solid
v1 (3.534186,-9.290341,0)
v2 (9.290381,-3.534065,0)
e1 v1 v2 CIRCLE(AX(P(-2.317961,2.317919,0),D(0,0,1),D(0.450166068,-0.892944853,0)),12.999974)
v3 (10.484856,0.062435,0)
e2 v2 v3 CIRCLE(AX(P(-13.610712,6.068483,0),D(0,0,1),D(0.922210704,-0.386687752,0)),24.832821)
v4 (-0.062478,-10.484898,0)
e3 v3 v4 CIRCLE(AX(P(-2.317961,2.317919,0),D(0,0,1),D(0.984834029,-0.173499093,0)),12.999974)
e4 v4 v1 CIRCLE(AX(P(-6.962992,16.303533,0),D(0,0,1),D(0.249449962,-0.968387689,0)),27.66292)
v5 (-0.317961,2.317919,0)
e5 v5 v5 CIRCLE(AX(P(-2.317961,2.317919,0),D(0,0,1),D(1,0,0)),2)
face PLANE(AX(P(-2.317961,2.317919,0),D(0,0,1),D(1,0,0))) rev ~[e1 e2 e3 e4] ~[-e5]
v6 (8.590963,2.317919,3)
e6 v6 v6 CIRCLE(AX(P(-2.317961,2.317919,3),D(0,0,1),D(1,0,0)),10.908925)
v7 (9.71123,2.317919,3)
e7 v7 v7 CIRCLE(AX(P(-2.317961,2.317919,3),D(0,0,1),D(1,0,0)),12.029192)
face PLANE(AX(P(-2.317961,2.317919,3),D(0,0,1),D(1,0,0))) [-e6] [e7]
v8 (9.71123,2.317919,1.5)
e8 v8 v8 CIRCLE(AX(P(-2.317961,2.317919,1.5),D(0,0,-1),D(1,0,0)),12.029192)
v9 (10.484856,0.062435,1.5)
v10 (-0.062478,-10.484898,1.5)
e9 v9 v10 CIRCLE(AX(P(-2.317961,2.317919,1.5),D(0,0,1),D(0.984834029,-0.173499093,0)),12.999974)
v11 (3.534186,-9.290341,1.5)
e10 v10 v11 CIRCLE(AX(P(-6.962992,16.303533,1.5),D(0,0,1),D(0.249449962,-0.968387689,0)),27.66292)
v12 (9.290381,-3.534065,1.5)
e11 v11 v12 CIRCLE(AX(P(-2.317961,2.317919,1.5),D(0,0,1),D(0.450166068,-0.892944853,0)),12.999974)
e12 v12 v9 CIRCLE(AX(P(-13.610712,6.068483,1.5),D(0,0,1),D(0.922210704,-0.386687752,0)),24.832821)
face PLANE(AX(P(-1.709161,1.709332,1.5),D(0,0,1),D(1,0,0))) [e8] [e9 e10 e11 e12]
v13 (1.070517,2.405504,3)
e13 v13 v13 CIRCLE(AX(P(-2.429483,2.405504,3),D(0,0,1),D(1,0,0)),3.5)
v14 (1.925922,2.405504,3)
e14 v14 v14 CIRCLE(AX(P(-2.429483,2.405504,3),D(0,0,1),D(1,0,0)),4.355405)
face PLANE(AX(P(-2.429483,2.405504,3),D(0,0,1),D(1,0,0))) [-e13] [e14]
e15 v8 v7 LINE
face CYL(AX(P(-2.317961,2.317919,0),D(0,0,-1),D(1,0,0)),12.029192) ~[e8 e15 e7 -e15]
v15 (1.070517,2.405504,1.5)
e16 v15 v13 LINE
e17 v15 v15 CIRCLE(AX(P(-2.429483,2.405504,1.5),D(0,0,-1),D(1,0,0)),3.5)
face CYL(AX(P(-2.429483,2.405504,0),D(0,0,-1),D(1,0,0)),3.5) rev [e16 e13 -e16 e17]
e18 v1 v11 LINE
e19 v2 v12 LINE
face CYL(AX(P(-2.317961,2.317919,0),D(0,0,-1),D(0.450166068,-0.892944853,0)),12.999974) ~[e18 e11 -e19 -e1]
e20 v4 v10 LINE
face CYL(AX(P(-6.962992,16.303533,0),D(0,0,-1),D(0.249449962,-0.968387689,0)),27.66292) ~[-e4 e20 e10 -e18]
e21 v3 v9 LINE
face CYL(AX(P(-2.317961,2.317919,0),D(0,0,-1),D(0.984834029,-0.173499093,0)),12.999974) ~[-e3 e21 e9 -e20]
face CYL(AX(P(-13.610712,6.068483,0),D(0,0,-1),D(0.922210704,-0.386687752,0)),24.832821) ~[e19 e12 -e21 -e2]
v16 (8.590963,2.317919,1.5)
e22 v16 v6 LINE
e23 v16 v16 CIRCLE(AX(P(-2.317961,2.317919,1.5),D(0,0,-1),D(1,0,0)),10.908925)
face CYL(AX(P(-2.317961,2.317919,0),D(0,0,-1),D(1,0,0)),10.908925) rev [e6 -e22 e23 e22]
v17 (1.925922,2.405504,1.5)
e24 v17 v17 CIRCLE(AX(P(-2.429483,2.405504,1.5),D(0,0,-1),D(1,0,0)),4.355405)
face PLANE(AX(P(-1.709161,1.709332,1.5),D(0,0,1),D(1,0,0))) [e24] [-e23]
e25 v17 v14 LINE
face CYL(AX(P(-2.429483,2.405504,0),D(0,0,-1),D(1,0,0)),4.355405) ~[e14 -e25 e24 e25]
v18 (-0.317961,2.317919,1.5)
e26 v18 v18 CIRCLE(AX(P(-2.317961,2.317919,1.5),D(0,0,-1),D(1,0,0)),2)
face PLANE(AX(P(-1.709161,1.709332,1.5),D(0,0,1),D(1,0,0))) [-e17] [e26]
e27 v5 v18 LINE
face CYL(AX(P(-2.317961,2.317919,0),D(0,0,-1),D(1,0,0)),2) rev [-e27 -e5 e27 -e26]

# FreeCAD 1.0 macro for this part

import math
import FreeCAD as App
import Part
import Sketcher
from FreeCAD import Vector
Q = App.Units.Quantity

doc = App.newDocument("Part")
body = doc.addObject("PartDesign::Body", "Body")

# Sketch on XY plane
sketch1 = doc.addObject("Sketcher::SketchObject", "Sketch")
body.addObject(sketch1)
sketch1.AttachmentSupport = (doc.XY_Plane, [""])
sketch1.MapMode = "FlatFace"
sketch1.addGeometry([
    Part.ArcOfCircle(Part.Circle(Vector(-13.6, 6.1, 0), Vector(0, 0, 1), 24.8), math.radians(-22.75), math.radians(-14)),
    Part.ArcOfCircle(Part.Circle(Vector(-2.3, 2.3, 0), Vector(0, 0, 1), 13), math.radians(-10), math.radians(280)),
    Part.ArcOfCircle(Part.Circle(Vector(-7, 16.3, 0), Vector(0, 0, 1), 27.7), math.radians(-75.56), math.radians(-67.7)),
    Part.ArcOfCircle(Part.Circle(Vector(-2.3, 2.3, 0), Vector(0, 0, 1), 13), math.radians(-63), math.radians(-27)),
], False)
sketch1.addConstraint([
    Sketcher.Constraint("Coincident", 0, 2, 1, 1),
    Sketcher.Constraint("Coincident", 1, 2, 2, 1),
    Sketcher.Constraint("Coincident", 2, 2, 3, 1),
    Sketcher.Constraint("Coincident", 3, 2, 0, 1),
    Sketcher.Constraint("Coincident", 3, 3, 1, 3),
    Sketcher.Constraint("Equal", 1, 3),
    Sketcher.Constraint("Radius", 0, Q("24.832821 mm")),
    Sketcher.Constraint("Radius", 2, Q("27.66292 mm")),
    Sketcher.Constraint("Radius", 1, Q("12.999974 mm")),
    Sketcher.Constraint("DistanceX", 0, 3, 2, 2, Q("17.144898 mm")),
    Sketcher.Constraint("DistanceY", 3, 2, 0, 2, Q("3.5965 mm")),
    Sketcher.Constraint("DistanceX", 1, 3, -1, 1, Q("2.317961 mm")),
    Sketcher.Constraint("DistanceY", -1, 1, 1, 3, Q("2.317919 mm")),
    Sketcher.Constraint("DistanceX", 2, 3, -1, 1, Q("6.962992 mm")),
    Sketcher.Constraint("DistanceY", 2, 2, -1, 1, Q("9.290341 mm")),
])
pad1 = doc.addObject("PartDesign::Pad", "Pad")
body.addObject(pad1)
pad1.Profile = sketch1
pad1.Length = 1.5

# Sketch on XY plane
sketch2 = doc.addObject("Sketcher::SketchObject", "Sketch001")
body.addObject(sketch2)
sketch2.AttachmentSupport = (doc.XY_Plane, [""])
sketch2.MapMode = "FlatFace"
sketch2.addGeometry([
    Part.Circle(Vector(-2.3, 2.3, 0), Vector(0, 0, 1), 12),
    Part.Circle(Vector(-2.3, 2.3, 0), Vector(0, 0, 1), 10.9),
    Part.Circle(Vector(-2.4, 2.4, 0), Vector(0, 0, 1), 4.4),
    Part.Circle(Vector(-2.4, 2.4, 0), Vector(0, 0, 1), 3.5),
], False)
sketch2.addConstraint([
    Sketcher.Constraint("Coincident", 1, 3, 0, 3),
    Sketcher.Constraint("Coincident", 3, 3, 2, 3),
    Sketcher.Constraint("Diameter", 3, Q("7 mm")),
    Sketcher.Constraint("Diameter", 1, Q("21.817849 mm")),
    Sketcher.Constraint("Diameter", 2, Q("8.710811 mm")),
    Sketcher.Constraint("Diameter", 0, Q("24.058383 mm")),
    Sketcher.Constraint("DistanceX", 0, 3, -1, 1, Q("2.317961 mm")),
    Sketcher.Constraint("DistanceY", -1, 1, 0, 3, Q("2.317919 mm")),
    Sketcher.Constraint("DistanceX", 2, 3, -1, 1, Q("2.429483 mm")),
    Sketcher.Constraint("DistanceY", -1, 1, 2, 3, Q("2.405504 mm")),
])
pad2 = doc.addObject("PartDesign::Pad", "Pad001")
body.addObject(pad2)
pad2.Profile = sketch2
pad2.Length = 3

# Sketch on XY plane
sketch3 = doc.addObject("Sketcher::SketchObject", "Sketch002")
body.addObject(sketch3)
sketch3.AttachmentSupport = (doc.XY_Plane, [""])
sketch3.MapMode = "FlatFace"
sketch3.addGeometry(Part.Circle(Vector(-2.3, 2.3, 0), Vector(0, 0, 1), 2), False)
sketch3.addConstraint([
    Sketcher.Constraint("Diameter", 0, Q("4 mm")),
    Sketcher.Constraint("DistanceX", 0, 3, -1, 1, Q("2.317961 mm")),
    Sketcher.Constraint("DistanceY", -1, 1, 0, 3, Q("2.317919 mm")),
])
pocket1 = doc.addObject("PartDesign::Pocket", "Pocket")
body.addObject(pocket1)
pocket1.Profile = sketch3
pocket1.Length = 25.4
pocket1.Reversed = True

doc.recompute()
